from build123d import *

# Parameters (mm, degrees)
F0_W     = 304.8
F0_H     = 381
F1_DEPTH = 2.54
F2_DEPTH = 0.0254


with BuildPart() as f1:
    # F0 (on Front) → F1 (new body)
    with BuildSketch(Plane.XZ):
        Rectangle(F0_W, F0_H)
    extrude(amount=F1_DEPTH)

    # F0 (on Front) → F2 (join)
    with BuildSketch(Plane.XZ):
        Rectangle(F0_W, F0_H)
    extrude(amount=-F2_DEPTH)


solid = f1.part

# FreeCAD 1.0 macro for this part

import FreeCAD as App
import Part
import Sketcher

V = App.Vector
Q = App.Units.Quantity

doc = App.newDocument("Part")
params = doc.addObject("Spreadsheet::Sheet", "Params")
for row, (alias, value) in enumerate([
    ("sketch1_width", "12 in"),
    ("sketch1_height", "15 in"),
    ("pad1_length", "0.1 in"),
    ("sketch2_width", "12 in"),
    ("sketch2_height", "15 in"),
    ("pad2_length", "0.001 in"),
], start=1):
    params.set(f"A{row}", alias)
    params.set(f"B{row}", "=" + value)
    params.setAlias(f"B{row}", alias)

body = doc.addObject("PartDesign::Body", "Body")

sketch1 = body.newObject("Sketcher::SketchObject", "Sketch")
sketch1.AttachmentSupport = (doc.getObject("XZ_Plane"), [""])
sketch1.MapMode = "FlatFace"
sketch1.addGeometry(Part.LineSegment(V(-152.4, 190.5, 0), V(-152.4, -190.5, 0)), False)
sketch1.addGeometry(Part.LineSegment(V(-152.4, -190.5, 0), V(152.4, -190.5, 0)), False)
sketch1.addGeometry(Part.LineSegment(V(152.4, -190.5, 0), V(152.4, 190.5, 0)), False)
sketch1.addGeometry(Part.LineSegment(V(152.4, 190.5, 0), V(-152.4, 190.5, 0)), False)
sketch1.addConstraint(Sketcher.Constraint("Coincident", 0, 2, 1, 1))
sketch1.addConstraint(Sketcher.Constraint("Coincident", 1, 2, 2, 1))
sketch1.addConstraint(Sketcher.Constraint("Coincident", 2, 2, 3, 1))
sketch1.addConstraint(Sketcher.Constraint("Coincident", 3, 2, 0, 1))
sketch1.addConstraint(Sketcher.Constraint("Vertical", 0))
sketch1.addConstraint(Sketcher.Constraint("Horizontal", 1))
sketch1.addConstraint(Sketcher.Constraint("Vertical", 2))
sketch1.addConstraint(Sketcher.Constraint("Horizontal", 3))
sketch1.addConstraint(Sketcher.Constraint("Symmetric", 0, 2, 2, 2, -1, 1))
sketch1.addConstraint(Sketcher.Constraint("DistanceX", 1, 1, 1, 2, Q("12 in")))
sketch1.addConstraint(Sketcher.Constraint("DistanceY", 0, 2, 0, 1, Q("15 in")))
sketch1.setExpression("Constraints[9]", "Params.sketch1_width")
sketch1.setExpression("Constraints[10]", "Params.sketch1_height")
pad1 = body.newObject("PartDesign::Pad", "Pad")
pad1.Profile = sketch1
pad1.setExpression("Length", "Params.pad1_length")

sketch2 = body.newObject("Sketcher::SketchObject", "Sketch001")
sketch2.AttachmentSupport = (doc.getObject("XZ_Plane"), [""])
sketch2.MapMode = "FlatFace"
sketch2.addGeometry(Part.LineSegment(V(-152.4, 190.5, 0), V(-152.4, -190.5, 0)), False)
sketch2.addGeometry(Part.LineSegment(V(-152.4, -190.5, 0), V(152.4, -190.5, 0)), False)
sketch2.addGeometry(Part.LineSegment(V(152.4, -190.5, 0), V(152.4, 190.5, 0)), False)
sketch2.addGeometry(Part.LineSegment(V(152.4, 190.5, 0), V(-152.4, 190.5, 0)), False)
sketch2.addConstraint(Sketcher.Constraint("Coincident", 0, 2, 1, 1))
sketch2.addConstraint(Sketcher.Constraint("Coincident", 1, 2, 2, 1))
sketch2.addConstraint(Sketcher.Constraint("Coincident", 2, 2, 3, 1))
sketch2.addConstraint(Sketcher.Constraint("Coincident", 3, 2, 0, 1))
sketch2.addConstraint(Sketcher.Constraint("Vertical", 0))
sketch2.addConstraint(Sketcher.Constraint("Horizontal", 1))
sketch2.addConstraint(Sketcher.Constraint("Vertical", 2))
sketch2.addConstraint(Sketcher.Constraint("Horizontal", 3))
sketch2.addConstraint(Sketcher.Constraint("Symmetric", 0, 2, 2, 2, -1, 1))
sketch2.addConstraint(Sketcher.Constraint("DistanceX", 1, 1, 1, 2, Q("12 in")))
sketch2.addConstraint(Sketcher.Constraint("DistanceY", 0, 2, 0, 1, Q("15 in")))
sketch2.setExpression("Constraints[9]", "Params.sketch2_width")
sketch2.setExpression("Constraints[10]", "Params.sketch2_height")
pad2 = body.newObject("PartDesign::Pad", "Pad001")
pad2.Profile = sketch2
pad2.setExpression("Length", "Params.pad2_length")
pad2.Reversed = True

doc.recompute()
